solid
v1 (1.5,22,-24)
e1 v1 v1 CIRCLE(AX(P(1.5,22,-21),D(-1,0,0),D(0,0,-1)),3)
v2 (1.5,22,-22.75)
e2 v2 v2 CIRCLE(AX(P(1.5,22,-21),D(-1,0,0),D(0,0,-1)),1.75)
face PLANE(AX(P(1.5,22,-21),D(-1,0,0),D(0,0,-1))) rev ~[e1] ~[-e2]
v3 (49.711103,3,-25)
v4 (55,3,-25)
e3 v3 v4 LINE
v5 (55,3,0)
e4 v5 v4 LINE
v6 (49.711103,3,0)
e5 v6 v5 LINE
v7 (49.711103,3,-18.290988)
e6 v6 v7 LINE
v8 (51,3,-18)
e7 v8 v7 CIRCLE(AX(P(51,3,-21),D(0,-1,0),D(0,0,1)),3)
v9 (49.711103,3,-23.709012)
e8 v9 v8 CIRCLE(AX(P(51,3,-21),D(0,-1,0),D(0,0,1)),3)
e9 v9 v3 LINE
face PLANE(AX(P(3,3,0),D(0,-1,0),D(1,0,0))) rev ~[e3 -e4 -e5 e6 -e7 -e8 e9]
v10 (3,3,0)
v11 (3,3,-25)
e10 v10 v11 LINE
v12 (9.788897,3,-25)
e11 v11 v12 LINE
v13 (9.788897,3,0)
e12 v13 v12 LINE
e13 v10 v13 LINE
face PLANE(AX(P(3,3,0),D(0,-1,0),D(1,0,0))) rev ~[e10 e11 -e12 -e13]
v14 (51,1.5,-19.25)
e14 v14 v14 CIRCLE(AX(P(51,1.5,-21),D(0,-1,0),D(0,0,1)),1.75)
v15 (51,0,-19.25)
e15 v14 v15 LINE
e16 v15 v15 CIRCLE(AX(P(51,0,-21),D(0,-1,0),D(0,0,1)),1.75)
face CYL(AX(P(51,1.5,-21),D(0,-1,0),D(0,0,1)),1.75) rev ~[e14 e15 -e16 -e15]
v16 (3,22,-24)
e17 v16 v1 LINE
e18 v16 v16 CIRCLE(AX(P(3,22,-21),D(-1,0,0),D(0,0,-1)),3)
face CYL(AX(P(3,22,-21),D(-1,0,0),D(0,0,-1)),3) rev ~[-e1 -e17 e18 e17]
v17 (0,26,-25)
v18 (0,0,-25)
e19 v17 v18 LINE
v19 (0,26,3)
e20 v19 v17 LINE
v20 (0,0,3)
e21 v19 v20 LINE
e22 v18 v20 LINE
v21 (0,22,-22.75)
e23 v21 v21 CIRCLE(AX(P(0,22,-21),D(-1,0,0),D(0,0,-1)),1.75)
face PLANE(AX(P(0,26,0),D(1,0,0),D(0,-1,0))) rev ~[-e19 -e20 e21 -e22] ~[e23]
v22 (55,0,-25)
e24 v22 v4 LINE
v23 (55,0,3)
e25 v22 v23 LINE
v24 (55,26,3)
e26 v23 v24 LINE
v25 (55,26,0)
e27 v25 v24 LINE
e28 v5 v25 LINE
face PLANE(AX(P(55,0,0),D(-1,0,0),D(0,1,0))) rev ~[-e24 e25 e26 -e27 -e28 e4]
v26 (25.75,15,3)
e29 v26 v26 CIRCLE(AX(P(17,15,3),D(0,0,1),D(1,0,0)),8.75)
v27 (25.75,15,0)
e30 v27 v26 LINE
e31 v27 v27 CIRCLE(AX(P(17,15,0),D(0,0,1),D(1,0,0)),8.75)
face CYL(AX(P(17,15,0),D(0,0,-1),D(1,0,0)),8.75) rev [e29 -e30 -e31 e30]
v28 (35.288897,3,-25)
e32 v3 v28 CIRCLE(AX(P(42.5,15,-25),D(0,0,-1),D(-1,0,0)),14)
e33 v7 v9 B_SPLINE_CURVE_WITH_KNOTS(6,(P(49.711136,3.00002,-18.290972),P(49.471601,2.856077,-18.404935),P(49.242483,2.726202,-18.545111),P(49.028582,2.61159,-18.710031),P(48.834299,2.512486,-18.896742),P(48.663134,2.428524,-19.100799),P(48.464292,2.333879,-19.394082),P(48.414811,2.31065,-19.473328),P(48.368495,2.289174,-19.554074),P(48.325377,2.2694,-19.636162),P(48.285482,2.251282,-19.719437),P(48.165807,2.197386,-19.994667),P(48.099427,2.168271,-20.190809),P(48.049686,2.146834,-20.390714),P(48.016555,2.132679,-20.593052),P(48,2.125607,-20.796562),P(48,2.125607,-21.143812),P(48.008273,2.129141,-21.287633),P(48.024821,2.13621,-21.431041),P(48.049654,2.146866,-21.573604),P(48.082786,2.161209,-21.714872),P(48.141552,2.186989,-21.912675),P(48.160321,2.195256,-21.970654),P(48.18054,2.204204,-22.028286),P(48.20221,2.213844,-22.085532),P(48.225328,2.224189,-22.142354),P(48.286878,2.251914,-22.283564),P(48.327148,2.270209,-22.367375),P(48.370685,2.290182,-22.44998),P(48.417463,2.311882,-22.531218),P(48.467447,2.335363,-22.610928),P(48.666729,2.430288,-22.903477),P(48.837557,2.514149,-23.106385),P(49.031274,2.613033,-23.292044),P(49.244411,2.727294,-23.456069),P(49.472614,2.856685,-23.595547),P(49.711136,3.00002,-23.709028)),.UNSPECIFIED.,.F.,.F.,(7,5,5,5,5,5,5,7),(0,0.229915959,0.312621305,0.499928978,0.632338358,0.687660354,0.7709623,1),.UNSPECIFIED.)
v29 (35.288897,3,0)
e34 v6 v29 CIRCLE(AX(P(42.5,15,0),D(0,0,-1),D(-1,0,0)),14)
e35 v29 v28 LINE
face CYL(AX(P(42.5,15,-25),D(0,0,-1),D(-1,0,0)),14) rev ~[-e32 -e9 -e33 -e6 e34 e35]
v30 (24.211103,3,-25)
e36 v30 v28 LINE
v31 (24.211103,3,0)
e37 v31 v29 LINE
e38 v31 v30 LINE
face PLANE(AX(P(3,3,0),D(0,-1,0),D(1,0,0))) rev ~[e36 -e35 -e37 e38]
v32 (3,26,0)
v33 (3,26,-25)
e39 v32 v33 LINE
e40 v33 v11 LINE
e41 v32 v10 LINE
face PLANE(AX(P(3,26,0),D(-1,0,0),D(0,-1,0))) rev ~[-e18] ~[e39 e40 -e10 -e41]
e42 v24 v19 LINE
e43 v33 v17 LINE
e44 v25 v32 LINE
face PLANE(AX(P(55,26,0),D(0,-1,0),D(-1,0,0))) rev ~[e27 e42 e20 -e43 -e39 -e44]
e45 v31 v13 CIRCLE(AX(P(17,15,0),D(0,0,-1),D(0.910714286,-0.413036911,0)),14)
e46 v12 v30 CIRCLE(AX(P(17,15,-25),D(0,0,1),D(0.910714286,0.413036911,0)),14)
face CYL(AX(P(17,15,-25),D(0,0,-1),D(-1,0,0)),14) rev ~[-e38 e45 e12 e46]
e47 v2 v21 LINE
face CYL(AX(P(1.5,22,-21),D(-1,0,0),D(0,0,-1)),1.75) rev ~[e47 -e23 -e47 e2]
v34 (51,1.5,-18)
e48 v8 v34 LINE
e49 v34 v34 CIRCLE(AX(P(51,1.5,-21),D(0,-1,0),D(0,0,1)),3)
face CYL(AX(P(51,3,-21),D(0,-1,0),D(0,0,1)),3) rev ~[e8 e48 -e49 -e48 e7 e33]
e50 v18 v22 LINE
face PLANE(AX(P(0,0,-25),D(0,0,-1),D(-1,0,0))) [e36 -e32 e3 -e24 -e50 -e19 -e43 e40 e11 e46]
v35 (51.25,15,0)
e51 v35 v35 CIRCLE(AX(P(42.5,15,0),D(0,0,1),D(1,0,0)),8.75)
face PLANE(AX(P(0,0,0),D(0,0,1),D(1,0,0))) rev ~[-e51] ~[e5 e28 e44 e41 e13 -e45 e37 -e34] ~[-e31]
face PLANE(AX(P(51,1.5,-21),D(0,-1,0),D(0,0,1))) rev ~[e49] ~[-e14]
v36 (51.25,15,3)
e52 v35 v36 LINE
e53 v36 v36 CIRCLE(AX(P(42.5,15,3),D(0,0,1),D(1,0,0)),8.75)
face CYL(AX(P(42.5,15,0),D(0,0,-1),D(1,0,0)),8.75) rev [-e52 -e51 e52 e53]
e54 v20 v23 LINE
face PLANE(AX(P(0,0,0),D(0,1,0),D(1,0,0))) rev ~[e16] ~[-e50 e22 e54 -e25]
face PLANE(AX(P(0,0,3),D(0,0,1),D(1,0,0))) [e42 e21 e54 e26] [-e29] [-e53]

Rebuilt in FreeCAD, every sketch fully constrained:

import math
import FreeCAD as App
import Part
import Sketcher

V = App.Vector


def add_polygon(sketch, points):
    """Adds a closed chain of lines whose ends are joined by coincident constraints."""
    first, n = sketch.GeometryCount, len(points)
    for a, b in zip(points, points[1:] + points[:1]):
        sketch.addGeometry(Part.LineSegment(App.Vector(*a, 0), App.Vector(*b, 0)), False)
    for i in range(n):
        sketch.addConstraint(Sketcher.Constraint("Coincident", first + i, 2, first + (i + 1) % n, 1))

doc = App.newDocument("Part")
params = doc.addObject("Spreadsheet::Sheet", "Params")
for row, (alias, value) in enumerate([
    ("sketch1_diameter", "17.5 mm"),
    ("sketch1_width", "55 mm"),
    ("sketch1_height", "26 mm"),
    ("pad1_length", "3 mm"),
    ("sketch2_width", "3 mm"),
    ("sketch2_width2", "55 mm"),
    ("sketch2_height", "26 mm"),
    ("pad2_length", "25 mm"),
    ("sketch3_diameter", "3.5 mm"),
    ("hole_diameter", "3.5 mm"),
    ("hole_cbore_diameter", "6 mm"),
    ("hole_cbore_depth", "1.5 mm"),
    ("sketch4_diameter", "3.5 mm"),
    ("hole2_diameter", "3.5 mm"),
    ("hole2_cbore_diameter", "6 mm"),
    ("hole2_cbore_depth", "1.5 mm"),
    ("sketch5_radius", "14 mm"),
    ("sketch5_diameter", "17.5 mm"),
    ("pocket1_length", "25 mm"),
], start=1):
    params.set(f"A{row}", alias)
    params.set(f"B{row}", "=" + value)
    params.setAlias(f"B{row}", alias)

body = doc.addObject("PartDesign::Body", "Body")

sketch1 = body.newObject("Sketcher::SketchObject", "Sketch")
sketch1.AttachmentSupport = (doc.getObject("XY_Plane"), [""])
sketch1.MapMode = "FlatFace"
add_polygon(sketch1, [(0, 26), (0, 0), (55, 0), (55, 26)])
sketch1.addGeometry(Part.Circle(V(17, 15, 0), V(0, 0, 1), 9), False)
sketch1.addGeometry(Part.Circle(V(42, 15, 0), V(0, 0, 1), 9), False)
sketch1.addConstraint([
    Sketcher.Constraint("Vertical", 0),
    Sketcher.Constraint("Horizontal", 1),
    Sketcher.Constraint("Vertical", 2),
    Sketcher.Constraint("Horizontal", 3),
    Sketcher.Constraint("Coincident", 0, 2, -1, 1),
    Sketcher.Constraint("Equal", 4, 5),
    Sketcher.Constraint("Horizontal", 4, 3, 5, 3),
    Sketcher.Constraint("Diameter", 4, 17.5),
    Sketcher.Constraint("DistanceX", 1, 1, 1, 2, 55.0),
    Sketcher.Constraint("DistanceY", 0, 2, 0, 1, 26.0),
    Sketcher.Constraint("DistanceX", -1, 1, 4, 3, 17.0),
    Sketcher.Constraint("DistanceY", 5, 3, 2, 2, 11.0),
    Sketcher.Constraint("DistanceX", 5, 3, 1, 2, 12.5),
])
sketch1.setExpression("Constraints[11]", "Params.sketch1_diameter")
sketch1.setExpression("Constraints[12]", "Params.sketch1_width")
sketch1.setExpression("Constraints[13]", "Params.sketch1_height")
pad1 = body.newObject("PartDesign::Pad", "Pad")
pad1.Profile = sketch1
pad1.setExpression("Length", "Params.pad1_length")

sketch2 = body.newObject("Sketcher::SketchObject", "Sketch001")
sketch2.AttachmentSupport = (doc.getObject("XY_Plane"), [""])
sketch2.MapMode = "FlatFace"
add_polygon(sketch2, [(55, 3), (55, 0), (0, 0), (0, 26), (3, 26), (3, 3)])
sketch2.addConstraint([
    Sketcher.Constraint("Vertical", 0),
    Sketcher.Constraint("Horizontal", 1),
    Sketcher.Constraint("Vertical", 2),
    Sketcher.Constraint("Horizontal", 3),
    Sketcher.Constraint("Vertical", 4),
    Sketcher.Constraint("Horizontal", 5),
    Sketcher.Constraint("Coincident", 1, 2, -1, 1),
    Sketcher.Constraint("Equal", 3, 0),
    Sketcher.Constraint("DistanceX", 3, 1, 3, 2, 3.0),
    Sketcher.Constraint("DistanceX", 1, 2, 1, 1, 55.0),
    Sketcher.Constraint("DistanceY", 2, 1, 2, 2, 26.0),
])
sketch2.setExpression("Constraints[14]", "Params.sketch2_width")
sketch2.setExpression("Constraints[15]", "Params.sketch2_width2")
sketch2.setExpression("Constraints[16]", "Params.sketch2_height")
pad2 = body.newObject("PartDesign::Pad", "Pad001")
pad2.Profile = sketch2
pad2.setExpression("Length", "Params.pad2_length")
pad2.Reversed = True

sketch3 = body.newObject("Sketcher::SketchObject", "Sketch002")
sketch3.AttachmentSupport = (doc.getObject("XZ_Plane"), [""])
sketch3.MapMode = "FlatFace"
sketch3.AttachmentOffset = App.Placement(V(0, 0, -3), App.Rotation())
sketch3.addGeometry(Part.Circle(V(51, -21, 0), V(0, 0, 1), 1.8), False)
sketch3.addConstraint([
    Sketcher.Constraint("Diameter", 0, 3.5),
    Sketcher.Constraint("DistanceX", -1, 1, 0, 3, 51.0),
    Sketcher.Constraint("DistanceY", 0, 3, -1, 1, 21.0),
])
sketch3.setExpression("Constraints[0]", "Params.sketch3_diameter")
doc.recompute()
hole = body.newObject("PartDesign::Hole", "Hole")
hole.Profile = sketch3
hole.ThreadType = "None"
hole.setExpression("Diameter", "Params.hole_diameter")
hole.DepthType = "ThroughAll"
hole.HoleCutType = "Counterbore"
hole.setExpression("HoleCutDiameter", "Params.hole_cbore_diameter")
hole.setExpression("HoleCutDepth", "Params.hole_cbore_depth")
hole.Reversed = True

sketch4 = body.newObject("Sketcher::SketchObject", "Sketch003")
sketch4.AttachmentSupport = (doc.getObject("YZ_Plane"), [""])
sketch4.MapMode = "FlatFace"
sketch4.AttachmentOffset = App.Placement(V(0, 0, 3), App.Rotation())
sketch4.addGeometry(Part.Circle(V(22, -21, 0), V(0, 0, 1), 1.8), False)
sketch4.addConstraint([
    Sketcher.Constraint("Diameter", 0, 3.5),
    Sketcher.Constraint("DistanceX", -1, 1, 0, 3, 22.0),
    Sketcher.Constraint("DistanceY", 0, 3, -1, 1, 21.0),
])
sketch4.setExpression("Constraints[0]", "Params.sketch4_diameter")
doc.recompute()
hole2 = body.newObject("PartDesign::Hole", "Hole001")
hole2.Profile = sketch4
hole2.ThreadType = "None"
hole2.setExpression("Diameter", "Params.hole2_diameter")
hole2.DepthType = "ThroughAll"
hole2.HoleCutType = "Counterbore"
hole2.setExpression("HoleCutDiameter", "Params.hole2_cbore_diameter")
hole2.setExpression("HoleCutDepth", "Params.hole2_cbore_depth")

sketch5 = body.newObject("Sketcher::SketchObject", "Sketch004")
sketch5.AttachmentSupport = (doc.getObject("XY_Plane"), [""])
sketch5.MapMode = "FlatFace"
sketch5.AttachmentOffset = App.Placement(V(0, 0, -25), App.Rotation())
sketch5.addGeometry([
    Part.ArcOfCircle(Part.Circle(V(42, 15, 0), V(0, 0, 1), 14), math.radians(156), math.radians(204)),
    Part.ArcOfCircle(Part.Circle(V(17, 15, 0), V(0, 0, 1), 14), math.radians(24), math.radians(336)),
    Part.Circle(V(17, 15, 0), V(0, 0, 1), 9),
    Part.ArcOfCircle(Part.Circle(V(17, 15, 0), V(0, 0, 1), 14), math.radians(-24), math.radians(24)),
    Part.ArcOfCircle(Part.Circle(V(42, 15, 0), V(0, 0, 1), 14), math.radians(-156), math.radians(156)),
    Part.Circle(V(42, 15, 0), V(0, 0, 1), 9),
], False)
sketch5.addConstraint([
    Sketcher.Constraint("Coincident", 0, 1, 1, 1),
    Sketcher.Constraint("Coincident", 1, 2, 0, 2),
    Sketcher.Constraint("Coincident", 3, 1, 4, 1),
    Sketcher.Constraint("Coincident", 4, 2, 3, 2),
    Sketcher.Constraint("Coincident", 2, 3, 1, 3),
    Sketcher.Constraint("Coincident", 3, 3, 1, 3),
    Sketcher.Constraint("Coincident", 4, 3, 0, 3),
    Sketcher.Constraint("Coincident", 5, 3, 0, 3),
    Sketcher.Constraint("Coincident", 3, 1, 1, 2),
    Sketcher.Constraint("Equal", 0, 1),
    Sketcher.Constraint("Equal", 2, 5),
    Sketcher.Constraint("Horizontal", 0, 3, 1, 3),
    Sketcher.Constraint("Radius", 0, 14.0),
    Sketcher.Constraint("Diameter", 2, 17.5),
    Sketcher.Constraint("DistanceY", -1, 1, 0, 3, 15.0),
    Sketcher.Constraint("DistanceX", -1, 1, 1, 3, 17.0),
    Sketcher.Constraint("DistanceX", -1, 1, 0, 3, 42.5),
])
sketch5.setExpression("Constraints[12]", "Params.sketch5_radius")
sketch5.setExpression("Constraints[13]", "Params.sketch5_diameter")
pocket1 = body.newObject("PartDesign::Pocket", "Pocket")
pocket1.Profile = sketch5
pocket1.setExpression("Length", "Params.pocket1_length")
pocket1.Reversed = True

doc.recompute()
